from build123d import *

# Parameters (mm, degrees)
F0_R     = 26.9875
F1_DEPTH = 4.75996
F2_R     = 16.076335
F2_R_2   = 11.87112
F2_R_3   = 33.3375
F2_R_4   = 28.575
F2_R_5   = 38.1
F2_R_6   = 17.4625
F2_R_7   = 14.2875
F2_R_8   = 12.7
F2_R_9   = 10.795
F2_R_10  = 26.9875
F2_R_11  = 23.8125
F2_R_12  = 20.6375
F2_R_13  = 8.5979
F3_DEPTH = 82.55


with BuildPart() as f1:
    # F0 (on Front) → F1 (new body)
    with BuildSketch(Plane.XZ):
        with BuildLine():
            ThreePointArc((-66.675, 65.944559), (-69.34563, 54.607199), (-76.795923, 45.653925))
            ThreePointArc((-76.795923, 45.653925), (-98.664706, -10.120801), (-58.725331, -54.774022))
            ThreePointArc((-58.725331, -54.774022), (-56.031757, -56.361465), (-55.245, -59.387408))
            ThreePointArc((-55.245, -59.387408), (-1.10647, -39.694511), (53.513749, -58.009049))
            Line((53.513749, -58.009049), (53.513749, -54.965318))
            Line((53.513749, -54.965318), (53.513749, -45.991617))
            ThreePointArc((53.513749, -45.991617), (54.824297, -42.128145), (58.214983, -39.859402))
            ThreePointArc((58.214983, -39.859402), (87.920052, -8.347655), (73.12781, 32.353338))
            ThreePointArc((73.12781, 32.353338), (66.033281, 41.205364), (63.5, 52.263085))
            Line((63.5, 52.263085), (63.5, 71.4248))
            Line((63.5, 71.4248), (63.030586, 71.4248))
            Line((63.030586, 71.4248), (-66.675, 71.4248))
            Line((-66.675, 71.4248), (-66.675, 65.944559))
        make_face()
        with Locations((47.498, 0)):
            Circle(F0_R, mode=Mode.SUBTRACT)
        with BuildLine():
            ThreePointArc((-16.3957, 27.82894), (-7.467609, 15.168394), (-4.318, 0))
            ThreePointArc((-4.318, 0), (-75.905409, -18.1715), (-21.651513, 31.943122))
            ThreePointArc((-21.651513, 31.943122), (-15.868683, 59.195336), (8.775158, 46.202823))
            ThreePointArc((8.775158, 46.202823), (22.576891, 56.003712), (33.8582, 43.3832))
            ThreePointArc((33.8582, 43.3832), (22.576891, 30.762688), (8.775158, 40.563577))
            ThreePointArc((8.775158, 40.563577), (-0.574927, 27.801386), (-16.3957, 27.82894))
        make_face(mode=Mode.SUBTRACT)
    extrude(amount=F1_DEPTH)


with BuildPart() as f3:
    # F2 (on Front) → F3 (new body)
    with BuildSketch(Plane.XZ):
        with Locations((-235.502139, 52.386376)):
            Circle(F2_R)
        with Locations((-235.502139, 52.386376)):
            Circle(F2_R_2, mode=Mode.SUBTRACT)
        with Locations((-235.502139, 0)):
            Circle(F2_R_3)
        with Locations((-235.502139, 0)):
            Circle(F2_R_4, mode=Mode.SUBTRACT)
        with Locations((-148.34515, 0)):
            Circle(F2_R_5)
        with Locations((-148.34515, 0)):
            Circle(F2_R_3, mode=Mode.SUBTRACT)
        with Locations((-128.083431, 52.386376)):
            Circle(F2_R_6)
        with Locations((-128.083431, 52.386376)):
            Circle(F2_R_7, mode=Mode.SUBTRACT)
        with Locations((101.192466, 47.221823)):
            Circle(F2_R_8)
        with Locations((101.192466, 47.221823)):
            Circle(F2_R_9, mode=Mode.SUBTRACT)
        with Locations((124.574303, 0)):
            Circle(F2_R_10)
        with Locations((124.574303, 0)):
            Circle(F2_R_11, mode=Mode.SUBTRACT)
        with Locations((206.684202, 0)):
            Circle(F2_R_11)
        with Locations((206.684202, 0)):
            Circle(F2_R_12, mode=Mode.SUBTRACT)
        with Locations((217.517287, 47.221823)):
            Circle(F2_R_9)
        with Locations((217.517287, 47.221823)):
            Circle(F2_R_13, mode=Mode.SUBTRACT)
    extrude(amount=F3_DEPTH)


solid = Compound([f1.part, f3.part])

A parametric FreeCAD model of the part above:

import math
import FreeCAD as App
import Part
import Sketcher
Q = App.Units.Quantity

doc = App.newDocument("Part")
body = doc.addObject("PartDesign::Body", "Body")

# Sketch on XZ plane
sketch1 = doc.addObject("Sketcher::SketchObject", "Sketch")
body.addObject(sketch1)
sketch1.AttachmentSupport = (doc.XZ_Plane, [""])
sketch1.MapMode = "FlatFace"
sketch1.addGeometry(Part.ArcOfCircle(Part.Circle(App.Vector(-92.1, 65.9, 0), App.Vector(0, 0, 1), 25.4), math.radians(-53), math.radians(0)), False)
sketch1.addGeometry(Part.ArcOfCircle(Part.Circle(App.Vector(-42.4, 0, 0), App.Vector(0, 0, 1), 57.1), math.radians(127), math.radians(253)), False)
sketch1.addGeometry(Part.ArcOfCircle(Part.Circle(App.Vector(-59.3, -58.8, 0), App.Vector(0, 0, 1), 4.1), math.radians(-8), math.radians(82)), False)
sketch1.addGeometry(Part.ArcOfCircle(Part.Circle(App.Vector(0, -127, 0), App.Vector(0, 0, 1), 87.3), math.radians(52), math.radians(129)), False)
sketch1.addGeometry(Part.LineSegment(App.Vector(53.5, -58, 0), App.Vector(53.5, -46, 0)), False)
sketch1.addGeometry(Part.ArcOfCircle(Part.Circle(App.Vector(59.9, -46, 0), App.Vector(0, 0, 1), 6.4), math.radians(105), math.radians(180)), False)
sketch1.addGeometry(Part.ArcOfCircle(Part.Circle(App.Vector(47.5, 0, 0), App.Vector(0, 0, 1), 41.3), math.radians(-75), math.radians(52)), False)
sketch1.addGeometry(Part.ArcOfCircle(Part.Circle(App.Vector(88.9, 52.3, 0), App.Vector(0, 0, 1), 25.4), math.radians(180), math.radians(232)), False)
sketch1.addGeometry(Part.LineSegment(App.Vector(63.5, 52.3, 0), App.Vector(63.5, 71.4, 0)), False)
sketch1.addGeometry(Part.LineSegment(App.Vector(63.5, 71.4, 0), App.Vector(-66.7, 71.4, 0)), False)
sketch1.addGeometry(Part.LineSegment(App.Vector(-66.7, 71.4, 0), App.Vector(-66.7, 65.9, 0)), False)
sketch1.addGeometry(Part.Circle(App.Vector(47.5, 0, 0), App.Vector(0, 0, 1), 27), False)
sketch1.addGeometry(Part.ArcOfCircle(Part.Circle(App.Vector(-8.5, 43.4, 0), App.Vector(0, 0, 1), 17.5), math.radians(-117), math.radians(-9)), False)
sketch1.addGeometry(Part.ArcOfCircle(Part.Circle(App.Vector(-42.4, 0, 0), App.Vector(0, 0, 1), 38.1), math.radians(0), math.radians(47)), False)
sketch1.addGeometry(Part.ArcOfCircle(Part.Circle(App.Vector(-42.4, 0, 0), App.Vector(0, 0, 1), 38.1), math.radians(57), math.radians(360)), False)
sketch1.addGeometry(Part.ArcOfCircle(Part.Circle(App.Vector(-8.5, 43.4, 0), App.Vector(0, 0, 1), 17.5), math.radians(9), math.radians(221)), False)
sketch1.addGeometry(Part.ArcOfCircle(Part.Circle(App.Vector(21.2, 43.4, 0), App.Vector(0, 0, 1), 12.7), math.radians(0), math.radians(167)), False)
sketch1.addGeometry(Part.ArcOfCircle(Part.Circle(App.Vector(21.2, 43.4, 0), App.Vector(0, 0, 1), 12.7), math.radians(-167), math.radians(0)), False)
sketch1.addConstraint(Sketcher.Constraint("Tangent", 0, 1, 1, 1))
sketch1.addConstraint(Sketcher.Constraint("Coincident", 1, 2, 2, 2))
sketch1.addConstraint(Sketcher.Constraint("Coincident", 2, 1, 3, 2))
sketch1.addConstraint(Sketcher.Constraint("Coincident", 3, 1, 4, 1))
sketch1.addConstraint(Sketcher.Constraint("Tangent", 4, 2, 5, 2))
sketch1.addConstraint(Sketcher.Constraint("Tangent", 5, 1, 6, 1))
sketch1.addConstraint(Sketcher.Constraint("Tangent", 6, 2, 7, 2))
sketch1.addConstraint(Sketcher.Constraint("Tangent", 7, 1, 8, 1))
sketch1.addConstraint(Sketcher.Constraint("Coincident", 8, 2, 9, 1))
sketch1.addConstraint(Sketcher.Constraint("Coincident", 9, 2, 10, 1))
sketch1.addConstraint(Sketcher.Constraint("Tangent", 10, 2, 0, 2))
sketch1.addConstraint(Sketcher.Constraint("Coincident", 12, 1, 13, 2))
sketch1.addConstraint(Sketcher.Constraint("Tangent", 13, 1, 14, 2))
sketch1.addConstraint(Sketcher.Constraint("Coincident", 14, 1, 15, 2))
sketch1.addConstraint(Sketcher.Constraint("Coincident", 15, 1, 16, 2))
sketch1.addConstraint(Sketcher.Constraint("Tangent", 16, 1, 17, 2))
sketch1.addConstraint(Sketcher.Constraint("Coincident", 17, 1, 12, 2))
sketch1.addConstraint(Sketcher.Constraint("Vertical", 4))
sketch1.addConstraint(Sketcher.Constraint("Vertical", 8))
sketch1.addConstraint(Sketcher.Constraint("Horizontal", 9))
sketch1.addConstraint(Sketcher.Constraint("Vertical", 10))
sketch1.addConstraint(Sketcher.Constraint("Coincident", 11, 3, 6, 3))
sketch1.addConstraint(Sketcher.Constraint("Coincident", 13, 3, 1, 3))
sketch1.addConstraint(Sketcher.Constraint("Coincident", 15, 3, 12, 3))
sketch1.addConstraint(Sketcher.Constraint("Equal", 13, 14))
sketch1.addConstraint(Sketcher.Constraint("Equal", 12, 15))
sketch1.addConstraint(Sketcher.Constraint("Equal", 16, 17))
sketch1.addConstraint(Sketcher.Constraint("PointOnObject", 1, 3, -1))
sketch1.addConstraint(Sketcher.Constraint("PointOnObject", 3, 3, -2))
sketch1.addConstraint(Sketcher.Constraint("PointOnObject", 6, 3, -1))
sketch1.addConstraint(Sketcher.Constraint("PointOnObject", 13, 1, -1))
sketch1.addConstraint(Sketcher.Constraint("Horizontal", 15, 3, 16, 3))
sketch1.addConstraint(Sketcher.Constraint("Horizontal", 17, 3, 16, 1))
sketch1.addConstraint(Sketcher.Constraint("Radius", 0, Q("1.0000001 in")))
sketch1.addConstraint(Sketcher.Constraint("Radius", 13, Q("1.5 in")))
sketch1.addConstraint(Sketcher.Constraint("Radius", 16, Q("0.5 in")))
sketch1.addConstraint(Sketcher.Constraint("Radius", 1, Q("2.25 in")))
sketch1.addConstraint(Sketcher.Constraint("Radius", 5, Q("0.25 in")))
sketch1.addConstraint(Sketcher.Constraint("Diameter", 11, Q("2.125 in")))
sketch1.addConstraint(Sketcher.Constraint("DistanceY", 3, 3, -1, 1, Q("4.9999999 in")))
sketch1.addConstraint(Sketcher.Constraint("Radius", 3, Q("3.4375 in")))
sketch1.addConstraint(Sketcher.Constraint("Radius", 6, Q("1.625 in")))
sketch1.addConstraint(Sketcher.Constraint("Radius", 12, Q("0.6875 in")))
sketch1.addConstraint(Sketcher.Constraint("DistanceX", -1, 1, 7, 1, Q("2.5 in")))
sketch1.addConstraint(Sketcher.Constraint("DistanceX", 9, 2, 9, 1, Q("5.125 in")))
sketch1.addConstraint(Sketcher.Constraint("DistanceX", 1, 3, -1, 1, Q("1.67 in")))
sketch1.addConstraint(Sketcher.Constraint("DistanceX", -1, 1, 6, 3, Q("1.87 in")))
sketch1.addConstraint(Sketcher.Constraint("DistanceX", 6, 3, 7, 3, Q("1.6299998 in")))
sketch1.addConstraint(Sketcher.Constraint("DistanceX", 12, 3, -1, 1, Q("0.333 in")))
sketch1.addConstraint(Sketcher.Constraint("DistanceY", -1, 1, 12, 3, Q("1.708 in")))
sketch1.addConstraint(Sketcher.Constraint("DistanceX", -1, 1, 16, 3, Q("0.833 in")))
sketch1.addConstraint(Sketcher.Constraint("DistanceX", 2, 1, -1, 1, Q("2.175 in")))
sketch1.addConstraint(Sketcher.Constraint("DistanceY", -1, 1, 8, 2, Q("2.812 in")))
sketch1.addConstraint(Sketcher.Constraint("Radius", 2, Q("4.092551 mm")))
sketch1.addConstraint(Sketcher.Constraint("DistanceY", 5, 1, -1, 1, Q("39.859402 mm")))
sketch1.addConstraint(Sketcher.Constraint("DistanceX", 1, 2, -1, 1, Q("58.725331 mm")))
pad1 = doc.addObject("PartDesign::Pad", "Pad")
body.addObject(pad1)
pad1.Profile = sketch1
pad1.Length = Q("0.1874 in")
body2 = doc.addObject("PartDesign::Body", "Body001")
body2.AllowCompound = True

# Sketch on XZ plane
sketch2 = doc.addObject("Sketcher::SketchObject", "Sketch001")
body2.addObject(sketch2)
sketch2.AttachmentSupport = (doc.getObject("XZ_Plane001"), [""])
sketch2.MapMode = "FlatFace"
sketch2.addGeometry(Part.Circle(App.Vector(-236, 52, 0), App.Vector(0, 0, 1), 16), False)
sketch2.addGeometry(Part.Circle(App.Vector(-236, 52, 0), App.Vector(0, 0, 1), 12), False)
sketch2.addGeometry(Part.Circle(App.Vector(-236, 0, 0), App.Vector(0, 0, 1), 33), False)
sketch2.addGeometry(Part.Circle(App.Vector(-236, 0, 0), App.Vector(0, 0, 1), 29), False)
sketch2.addGeometry(Part.Circle(App.Vector(-148, 0, 0), App.Vector(0, 0, 1), 38), False)
sketch2.addGeometry(Part.Circle(App.Vector(-148, 0, 0), App.Vector(0, 0, 1), 33), False)
sketch2.addGeometry(Part.Circle(App.Vector(-128, 52, 0), App.Vector(0, 0, 1), 17), False)
sketch2.addGeometry(Part.Circle(App.Vector(-128, 52, 0), App.Vector(0, 0, 1), 14), False)
sketch2.addGeometry(Part.Circle(App.Vector(101, 47, 0), App.Vector(0, 0, 1), 13), False)
sketch2.addGeometry(Part.Circle(App.Vector(101, 47, 0), App.Vector(0, 0, 1), 11), False)
sketch2.addGeometry(Part.Circle(App.Vector(125, 0, 0), App.Vector(0, 0, 1), 27), False)
sketch2.addGeometry(Part.Circle(App.Vector(125, 0, 0), App.Vector(0, 0, 1), 24), False)
sketch2.addGeometry(Part.Circle(App.Vector(207, 0, 0), App.Vector(0, 0, 1), 24), False)
sketch2.addGeometry(Part.Circle(App.Vector(207, 0, 0), App.Vector(0, 0, 1), 21), False)
sketch2.addGeometry(Part.Circle(App.Vector(218, 47, 0), App.Vector(0, 0, 1), 11), False)
sketch2.addGeometry(Part.Circle(App.Vector(218, 47, 0), App.Vector(0, 0, 1), 9), False)
sketch2.addConstraint(Sketcher.Constraint("Coincident", 1, 3, 0, 3))
sketch2.addConstraint(Sketcher.Constraint("Coincident", 3, 3, 2, 3))
sketch2.addConstraint(Sketcher.Constraint("Coincident", 5, 3, 4, 3))
sketch2.addConstraint(Sketcher.Constraint("Coincident", 7, 3, 6, 3))
sketch2.addConstraint(Sketcher.Constraint("Coincident", 9, 3, 8, 3))
sketch2.addConstraint(Sketcher.Constraint("Coincident", 11, 3, 10, 3))
sketch2.addConstraint(Sketcher.Constraint("Coincident", 13, 3, 12, 3))
sketch2.addConstraint(Sketcher.Constraint("Coincident", 15, 3, 14, 3))
sketch2.addConstraint(Sketcher.Constraint("Equal", 2, 5))
sketch2.addConstraint(Sketcher.Constraint("Equal", 11, 12))
sketch2.addConstraint(Sketcher.Constraint("Equal", 9, 14))
sketch2.addConstraint(Sketcher.Constraint("PointOnObject", 2, 3, -1))
sketch2.addConstraint(Sketcher.Constraint("PointOnObject", 4, 3, -1))
sketch2.addConstraint(Sketcher.Constraint("PointOnObject", 10, 3, -1))
sketch2.addConstraint(Sketcher.Constraint("PointOnObject", 12, 3, -1))
sketch2.addConstraint(Sketcher.Constraint("Horizontal", 1, 3, 6, 3))
sketch2.addConstraint(Sketcher.Constraint("Horizontal", 9, 3, 14, 3))
sketch2.addConstraint(Sketcher.Constraint("Vertical", 1, 3, 2, 3))
sketch2.addConstraint(Sketcher.Constraint("Diameter", 4, Q("3 in")))
sketch2.addConstraint(Sketcher.Constraint("Diameter", 8, Q("1 in")))
sketch2.addConstraint(Sketcher.Constraint("Diameter", 3, Q("2.25 in")))
sketch2.addConstraint(Sketcher.Constraint("Diameter", 9, Q("0.85 in")))
sketch2.addConstraint(Sketcher.Constraint("Diameter", 2, Q("2.625 in")))
sketch2.addConstraint(Sketcher.Constraint("Diameter", 6, Q("1.375 in")))
sketch2.addConstraint(Sketcher.Constraint("Diameter", 7, Q("1.125 in")))
sketch2.addConstraint(Sketcher.Constraint("Diameter", 10, Q("2.125 in")))
sketch2.addConstraint(Sketcher.Constraint("Diameter", 11, Q("1.875 in")))
sketch2.addConstraint(Sketcher.Constraint("Diameter", 13, Q("1.625 in")))
sketch2.addConstraint(Sketcher.Constraint("Diameter", 15, Q("0.677 in")))
sketch2.addConstraint(Sketcher.Constraint("Diameter", 0, Q("32.15267 mm")))
sketch2.addConstraint(Sketcher.Constraint("Diameter", 1, Q("23.74224 mm")))
sketch2.addConstraint(Sketcher.Constraint("DistanceX", -1, 1, 10, 3, Q("4.9045001 in")))
sketch2.addConstraint(Sketcher.Constraint("DistanceX", -1, 1, 12, 3, Q("206.684202 mm")))
sketch2.addConstraint(Sketcher.Constraint("DistanceX", 0, 3, -1, 1, Q("235.502139 mm")))
sketch2.addConstraint(Sketcher.Constraint("DistanceX", 4, 3, -1, 1, Q("148.34515 mm")))
sketch2.addConstraint(Sketcher.Constraint("DistanceX", 6, 3, -1, 1, Q("128.083431 mm")))
sketch2.addConstraint(Sketcher.Constraint("DistanceX", 8, 3, 14, 3, Q("116.324821 mm")))
sketch2.addConstraint(Sketcher.Constraint("DistanceY", -1, 1, 0, 3, Q("52.386376 mm")))
sketch2.addConstraint(Sketcher.Constraint("DistanceX", -1, 1, 8, 3, Q("101.192466 mm")))
sketch2.addConstraint(Sketcher.Constraint("DistanceY", -1, 1, 8, 3, Q("47.221823 mm")))
pad2 = doc.addObject("PartDesign::Pad", "Pad001")
body2.addObject(pad2)
pad2.Profile = sketch2
pad2.Length = Q("3.25 in")

doc.recompute()
